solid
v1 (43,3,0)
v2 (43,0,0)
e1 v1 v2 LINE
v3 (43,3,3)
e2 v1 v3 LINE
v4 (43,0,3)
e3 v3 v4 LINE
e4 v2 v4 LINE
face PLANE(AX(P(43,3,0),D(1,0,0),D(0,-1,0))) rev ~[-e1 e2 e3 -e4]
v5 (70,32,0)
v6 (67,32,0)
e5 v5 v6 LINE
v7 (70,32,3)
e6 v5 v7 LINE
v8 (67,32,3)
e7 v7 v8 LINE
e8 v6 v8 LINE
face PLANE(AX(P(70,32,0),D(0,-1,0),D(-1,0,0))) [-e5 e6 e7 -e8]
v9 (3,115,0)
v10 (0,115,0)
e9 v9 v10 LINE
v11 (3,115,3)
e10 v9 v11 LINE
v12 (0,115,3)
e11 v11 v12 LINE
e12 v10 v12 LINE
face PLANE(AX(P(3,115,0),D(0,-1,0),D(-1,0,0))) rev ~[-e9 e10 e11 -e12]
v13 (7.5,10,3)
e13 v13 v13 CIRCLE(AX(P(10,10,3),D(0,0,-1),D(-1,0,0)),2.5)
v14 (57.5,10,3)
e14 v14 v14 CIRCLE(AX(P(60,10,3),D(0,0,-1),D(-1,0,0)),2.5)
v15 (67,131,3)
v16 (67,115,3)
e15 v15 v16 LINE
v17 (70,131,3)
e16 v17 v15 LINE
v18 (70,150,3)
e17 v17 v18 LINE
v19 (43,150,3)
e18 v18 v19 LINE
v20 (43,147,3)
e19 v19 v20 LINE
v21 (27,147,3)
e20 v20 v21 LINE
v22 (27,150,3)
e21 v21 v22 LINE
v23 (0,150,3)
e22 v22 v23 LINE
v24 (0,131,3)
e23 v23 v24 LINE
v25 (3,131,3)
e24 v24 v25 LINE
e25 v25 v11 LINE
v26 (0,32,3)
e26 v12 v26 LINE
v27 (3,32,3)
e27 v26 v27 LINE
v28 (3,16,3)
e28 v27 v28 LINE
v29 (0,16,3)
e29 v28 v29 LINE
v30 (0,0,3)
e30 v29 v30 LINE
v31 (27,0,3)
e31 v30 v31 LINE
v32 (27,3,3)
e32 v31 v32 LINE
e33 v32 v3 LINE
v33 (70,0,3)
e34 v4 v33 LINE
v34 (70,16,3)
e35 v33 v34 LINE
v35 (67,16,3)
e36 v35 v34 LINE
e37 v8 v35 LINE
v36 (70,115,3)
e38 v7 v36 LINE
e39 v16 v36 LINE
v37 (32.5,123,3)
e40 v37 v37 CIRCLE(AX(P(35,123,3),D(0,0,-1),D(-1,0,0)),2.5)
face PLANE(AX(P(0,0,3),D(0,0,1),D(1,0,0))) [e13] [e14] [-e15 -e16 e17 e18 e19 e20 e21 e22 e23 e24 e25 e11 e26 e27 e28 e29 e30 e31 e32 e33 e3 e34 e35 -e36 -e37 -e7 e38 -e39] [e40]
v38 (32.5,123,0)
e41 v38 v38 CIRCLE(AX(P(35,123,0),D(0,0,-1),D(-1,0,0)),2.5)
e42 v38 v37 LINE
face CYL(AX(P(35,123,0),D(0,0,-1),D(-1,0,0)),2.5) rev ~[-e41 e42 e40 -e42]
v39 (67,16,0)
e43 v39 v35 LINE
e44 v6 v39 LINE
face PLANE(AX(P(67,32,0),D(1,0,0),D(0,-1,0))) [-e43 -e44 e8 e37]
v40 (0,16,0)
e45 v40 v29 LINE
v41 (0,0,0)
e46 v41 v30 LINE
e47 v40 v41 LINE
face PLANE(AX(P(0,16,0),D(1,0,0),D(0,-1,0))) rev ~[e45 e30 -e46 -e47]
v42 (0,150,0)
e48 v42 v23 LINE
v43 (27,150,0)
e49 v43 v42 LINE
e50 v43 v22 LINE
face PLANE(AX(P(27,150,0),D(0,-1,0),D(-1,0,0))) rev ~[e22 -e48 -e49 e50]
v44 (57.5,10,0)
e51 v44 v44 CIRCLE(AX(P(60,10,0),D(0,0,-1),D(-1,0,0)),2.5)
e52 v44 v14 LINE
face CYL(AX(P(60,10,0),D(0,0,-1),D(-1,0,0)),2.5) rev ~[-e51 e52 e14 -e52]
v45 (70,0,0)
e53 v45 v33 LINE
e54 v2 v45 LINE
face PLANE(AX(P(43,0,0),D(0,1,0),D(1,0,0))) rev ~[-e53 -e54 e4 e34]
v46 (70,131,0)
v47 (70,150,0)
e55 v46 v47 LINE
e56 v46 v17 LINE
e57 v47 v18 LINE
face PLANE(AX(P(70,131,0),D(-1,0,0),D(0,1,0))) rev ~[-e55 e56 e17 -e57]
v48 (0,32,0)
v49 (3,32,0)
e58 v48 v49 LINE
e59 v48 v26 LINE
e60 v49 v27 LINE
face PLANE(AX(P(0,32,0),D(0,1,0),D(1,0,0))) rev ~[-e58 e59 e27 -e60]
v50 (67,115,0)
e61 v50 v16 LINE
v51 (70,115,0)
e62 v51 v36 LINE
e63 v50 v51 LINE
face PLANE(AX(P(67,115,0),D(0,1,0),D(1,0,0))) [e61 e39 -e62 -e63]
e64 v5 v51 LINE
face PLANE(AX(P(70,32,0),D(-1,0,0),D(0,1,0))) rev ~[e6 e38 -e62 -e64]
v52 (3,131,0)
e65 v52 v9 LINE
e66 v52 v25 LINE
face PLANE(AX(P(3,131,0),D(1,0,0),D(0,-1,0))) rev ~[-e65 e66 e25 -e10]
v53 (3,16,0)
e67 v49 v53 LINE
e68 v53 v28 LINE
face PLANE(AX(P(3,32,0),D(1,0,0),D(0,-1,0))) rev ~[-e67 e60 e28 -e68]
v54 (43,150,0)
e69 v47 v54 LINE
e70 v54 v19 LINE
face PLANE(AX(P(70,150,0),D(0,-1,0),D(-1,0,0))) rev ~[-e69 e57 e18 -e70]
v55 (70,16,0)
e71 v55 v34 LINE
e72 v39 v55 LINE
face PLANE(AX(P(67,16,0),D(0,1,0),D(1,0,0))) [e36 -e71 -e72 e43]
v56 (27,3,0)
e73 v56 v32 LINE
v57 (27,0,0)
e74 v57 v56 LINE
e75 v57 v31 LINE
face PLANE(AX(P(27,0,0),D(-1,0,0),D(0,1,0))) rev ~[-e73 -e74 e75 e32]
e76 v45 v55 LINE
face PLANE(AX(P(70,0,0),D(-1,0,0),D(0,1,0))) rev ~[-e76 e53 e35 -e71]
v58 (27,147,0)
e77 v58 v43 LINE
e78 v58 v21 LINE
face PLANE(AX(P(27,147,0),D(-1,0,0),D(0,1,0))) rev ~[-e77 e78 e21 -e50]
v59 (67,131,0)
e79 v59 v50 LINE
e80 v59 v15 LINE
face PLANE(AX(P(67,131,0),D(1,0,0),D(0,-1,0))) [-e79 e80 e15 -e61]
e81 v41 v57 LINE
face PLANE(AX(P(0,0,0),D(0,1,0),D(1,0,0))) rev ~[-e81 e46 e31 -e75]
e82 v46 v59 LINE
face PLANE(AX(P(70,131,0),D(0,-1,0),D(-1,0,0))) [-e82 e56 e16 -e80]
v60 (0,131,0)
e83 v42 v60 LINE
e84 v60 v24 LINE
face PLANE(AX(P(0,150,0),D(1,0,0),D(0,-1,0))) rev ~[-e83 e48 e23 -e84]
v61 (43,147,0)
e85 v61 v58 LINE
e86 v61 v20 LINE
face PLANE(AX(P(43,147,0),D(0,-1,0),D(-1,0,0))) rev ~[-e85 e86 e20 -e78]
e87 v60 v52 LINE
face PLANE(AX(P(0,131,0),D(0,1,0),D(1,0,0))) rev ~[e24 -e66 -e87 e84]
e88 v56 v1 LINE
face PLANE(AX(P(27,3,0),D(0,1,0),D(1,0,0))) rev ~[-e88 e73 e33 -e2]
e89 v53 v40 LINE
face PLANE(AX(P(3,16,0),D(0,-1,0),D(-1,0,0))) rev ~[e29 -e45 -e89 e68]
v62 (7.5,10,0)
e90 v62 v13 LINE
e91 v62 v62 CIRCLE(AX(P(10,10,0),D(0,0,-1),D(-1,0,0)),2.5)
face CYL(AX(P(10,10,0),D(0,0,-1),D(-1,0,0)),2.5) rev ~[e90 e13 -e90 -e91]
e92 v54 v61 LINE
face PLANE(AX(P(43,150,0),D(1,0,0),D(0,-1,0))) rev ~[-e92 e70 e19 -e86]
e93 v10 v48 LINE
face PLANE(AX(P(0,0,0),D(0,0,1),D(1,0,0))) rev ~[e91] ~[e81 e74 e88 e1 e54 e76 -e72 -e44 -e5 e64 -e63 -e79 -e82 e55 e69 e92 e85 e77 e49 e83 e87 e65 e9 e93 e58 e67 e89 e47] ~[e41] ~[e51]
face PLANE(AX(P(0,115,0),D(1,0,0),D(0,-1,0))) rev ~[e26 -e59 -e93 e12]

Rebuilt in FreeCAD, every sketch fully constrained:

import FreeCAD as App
import Part
import Sketcher

V = App.Vector
Q = App.Units.Quantity


def add_polygon(sketch, points):
    """Adds a closed chain of lines whose ends are joined by coincident constraints."""
    first, n = sketch.GeometryCount, len(points)
    for a, b in zip(points, points[1:] + points[:1]):
        sketch.addGeometry(Part.LineSegment(App.Vector(*a, 0), App.Vector(*b, 0)), False)
    for i in range(n):
        sketch.addConstraint(Sketcher.Constraint("Coincident", first + i, 2, first + (i + 1) % n, 1))

doc = App.newDocument("Part")
body = doc.addObject("PartDesign::Body", "Body")

# Sketch on XY plane
sketch1 = doc.addObject("Sketcher::SketchObject", "Sketch")
body.addObject(sketch1)
sketch1.AttachmentSupport = (doc.XY_Plane, [""])
sketch1.MapMode = "FlatFace"
add_polygon(sketch1, [(0, 16), (0, 0), (27, 0), (27, 3), (43, 3), (43, 0), (70, 0), (70, 16), (67, 16), (67, 32), (70, 32), (70, 115), (67, 115), (67, 131), (70, 131), (70, 150), (43, 150), (43, 147), (27, 147), (27, 150), (0, 150), (0, 131), (3, 131), (3, 115), (0, 115), (0, 32), (3, 32), (3, 16)])  # lines 0-27
sketch1.addConstraint([
    Sketcher.Constraint("Vertical", 0),
    Sketcher.Constraint("Horizontal", 1),
    Sketcher.Constraint("Vertical", 2),
    Sketcher.Constraint("Horizontal", 3),
    Sketcher.Constraint("Vertical", 4),
    Sketcher.Constraint("Horizontal", 5),
    Sketcher.Constraint("Vertical", 6),
    Sketcher.Constraint("Horizontal", 7),
    Sketcher.Constraint("Vertical", 8),
    Sketcher.Constraint("Horizontal", 9),
    Sketcher.Constraint("Vertical", 10),
    Sketcher.Constraint("Horizontal", 11),
    Sketcher.Constraint("Vertical", 12),
    Sketcher.Constraint("Horizontal", 13),
    Sketcher.Constraint("Vertical", 14),
    Sketcher.Constraint("Horizontal", 15),
    Sketcher.Constraint("Vertical", 16),
    Sketcher.Constraint("Horizontal", 17),
    Sketcher.Constraint("Vertical", 18),
    Sketcher.Constraint("Horizontal", 19),
    Sketcher.Constraint("Vertical", 20),
    Sketcher.Constraint("Horizontal", 21),
    Sketcher.Constraint("Vertical", 22),
    Sketcher.Constraint("Horizontal", 23),
    Sketcher.Constraint("Vertical", 24),
    Sketcher.Constraint("Horizontal", 25),
    Sketcher.Constraint("Vertical", 26),
    Sketcher.Constraint("Horizontal", 27),
    Sketcher.Constraint("Coincident", 0, 2, -1, 1),
    Sketcher.Constraint("PointOnObject", 4, 2, -1),
    Sketcher.Constraint("PointOnObject", 19, 2, -2),
    Sketcher.Constraint("PointOnObject", 23, 2, -2),
    Sketcher.Constraint("Horizontal", 15, 2, 18, 2),
    Sketcher.Constraint("Horizontal", 13, 2, 20, 2),
    Sketcher.Constraint("Horizontal", 11, 2, 22, 2),
    Sketcher.Constraint("Horizontal", 9, 2, 24, 2),
    Sketcher.Constraint("Horizontal", 7, 2, 26, 2),
    Sketcher.Constraint("Vertical", 6, 2, 9, 2),
    Sketcher.Constraint("Vertical", 8, 2, 11, 2),
    Sketcher.Constraint("Vertical", 10, 2, 13, 2),
    Sketcher.Constraint("Vertical", 4, 2, 15, 2),
    Sketcher.Constraint("Vertical", 2, 2, 17, 2),
    Sketcher.Constraint("Vertical", 22, 2, 25, 2),
    Sketcher.Constraint("Equal", 1, 5),
    Sketcher.Constraint("Equal", 13, 21),
    Sketcher.Constraint("Equal", 17, 0),
    Sketcher.Constraint("Equal", 27, 2),
    Sketcher.Constraint("Equal", 6, 8),
    Sketcher.Constraint("Equal", 8, 12),
    Sketcher.Constraint("Equal", 4, 16),
    Sketcher.Constraint("DistanceX", 3, 1, 3, 2, Q("16 mm")),
    Sketcher.Constraint("DistanceX", 7, 2, 7, 1, Q("3 mm")),
    Sketcher.Constraint("DistanceY", 14, 1, 14, 2, Q("19 mm")),
    Sketcher.Constraint("DistanceX", -1, 1, 5, 2, Q("70 mm")),
    Sketcher.Constraint("DistanceY", -1, 1, 14, 2, Q("150 mm")),
])
pad1 = doc.addObject("PartDesign::Pad", "Pad")
body.addObject(pad1)
pad1.Profile = sketch1
pad1.Length = 3

# Sketch on XY plane
sketch2 = doc.addObject("Sketcher::SketchObject", "Sketch001")
body.addObject(sketch2)
sketch2.AttachmentSupport = (doc.XY_Plane, [""])
sketch2.MapMode = "FlatFace"
sketch2.addGeometry([
    Part.Circle(V(35, 123, 0), V(0, 0, 1), 2.5),
    Part.Circle(V(60, 10, 0), V(0, 0, 1), 2.5),
    Part.Circle(V(10, 10, 0), V(0, 0, 1), 2.5),
], False)
sketch2.addConstraint([
    Sketcher.Constraint("Equal", 0, 1),
    Sketcher.Constraint("Equal", 1, 2),
    Sketcher.Constraint("Horizontal", 1, 3, 2, 3),
    Sketcher.Constraint("Diameter", 0, Q("5 mm")),
    Sketcher.Constraint("DistanceY", -1, 1, 1, 3, Q("10 mm")),
    Sketcher.Constraint("DistanceX", -1, 1, 2, 3, Q("10 mm")),
    Sketcher.Constraint("DistanceX", -1, 1, 0, 3, Q("35 mm")),
    Sketcher.Constraint("DistanceY", -1, 1, 0, 3, Q("123 mm")),
    Sketcher.Constraint("DistanceX", -1, 1, 1, 3, Q("60 mm")),
])
pocket1 = doc.addObject("PartDesign::Pocket", "Pocket")
body.addObject(pocket1)
pocket1.Profile = sketch2
pocket1.Type = "ThroughAll"
pocket1.Reversed = True

doc.recompute()
